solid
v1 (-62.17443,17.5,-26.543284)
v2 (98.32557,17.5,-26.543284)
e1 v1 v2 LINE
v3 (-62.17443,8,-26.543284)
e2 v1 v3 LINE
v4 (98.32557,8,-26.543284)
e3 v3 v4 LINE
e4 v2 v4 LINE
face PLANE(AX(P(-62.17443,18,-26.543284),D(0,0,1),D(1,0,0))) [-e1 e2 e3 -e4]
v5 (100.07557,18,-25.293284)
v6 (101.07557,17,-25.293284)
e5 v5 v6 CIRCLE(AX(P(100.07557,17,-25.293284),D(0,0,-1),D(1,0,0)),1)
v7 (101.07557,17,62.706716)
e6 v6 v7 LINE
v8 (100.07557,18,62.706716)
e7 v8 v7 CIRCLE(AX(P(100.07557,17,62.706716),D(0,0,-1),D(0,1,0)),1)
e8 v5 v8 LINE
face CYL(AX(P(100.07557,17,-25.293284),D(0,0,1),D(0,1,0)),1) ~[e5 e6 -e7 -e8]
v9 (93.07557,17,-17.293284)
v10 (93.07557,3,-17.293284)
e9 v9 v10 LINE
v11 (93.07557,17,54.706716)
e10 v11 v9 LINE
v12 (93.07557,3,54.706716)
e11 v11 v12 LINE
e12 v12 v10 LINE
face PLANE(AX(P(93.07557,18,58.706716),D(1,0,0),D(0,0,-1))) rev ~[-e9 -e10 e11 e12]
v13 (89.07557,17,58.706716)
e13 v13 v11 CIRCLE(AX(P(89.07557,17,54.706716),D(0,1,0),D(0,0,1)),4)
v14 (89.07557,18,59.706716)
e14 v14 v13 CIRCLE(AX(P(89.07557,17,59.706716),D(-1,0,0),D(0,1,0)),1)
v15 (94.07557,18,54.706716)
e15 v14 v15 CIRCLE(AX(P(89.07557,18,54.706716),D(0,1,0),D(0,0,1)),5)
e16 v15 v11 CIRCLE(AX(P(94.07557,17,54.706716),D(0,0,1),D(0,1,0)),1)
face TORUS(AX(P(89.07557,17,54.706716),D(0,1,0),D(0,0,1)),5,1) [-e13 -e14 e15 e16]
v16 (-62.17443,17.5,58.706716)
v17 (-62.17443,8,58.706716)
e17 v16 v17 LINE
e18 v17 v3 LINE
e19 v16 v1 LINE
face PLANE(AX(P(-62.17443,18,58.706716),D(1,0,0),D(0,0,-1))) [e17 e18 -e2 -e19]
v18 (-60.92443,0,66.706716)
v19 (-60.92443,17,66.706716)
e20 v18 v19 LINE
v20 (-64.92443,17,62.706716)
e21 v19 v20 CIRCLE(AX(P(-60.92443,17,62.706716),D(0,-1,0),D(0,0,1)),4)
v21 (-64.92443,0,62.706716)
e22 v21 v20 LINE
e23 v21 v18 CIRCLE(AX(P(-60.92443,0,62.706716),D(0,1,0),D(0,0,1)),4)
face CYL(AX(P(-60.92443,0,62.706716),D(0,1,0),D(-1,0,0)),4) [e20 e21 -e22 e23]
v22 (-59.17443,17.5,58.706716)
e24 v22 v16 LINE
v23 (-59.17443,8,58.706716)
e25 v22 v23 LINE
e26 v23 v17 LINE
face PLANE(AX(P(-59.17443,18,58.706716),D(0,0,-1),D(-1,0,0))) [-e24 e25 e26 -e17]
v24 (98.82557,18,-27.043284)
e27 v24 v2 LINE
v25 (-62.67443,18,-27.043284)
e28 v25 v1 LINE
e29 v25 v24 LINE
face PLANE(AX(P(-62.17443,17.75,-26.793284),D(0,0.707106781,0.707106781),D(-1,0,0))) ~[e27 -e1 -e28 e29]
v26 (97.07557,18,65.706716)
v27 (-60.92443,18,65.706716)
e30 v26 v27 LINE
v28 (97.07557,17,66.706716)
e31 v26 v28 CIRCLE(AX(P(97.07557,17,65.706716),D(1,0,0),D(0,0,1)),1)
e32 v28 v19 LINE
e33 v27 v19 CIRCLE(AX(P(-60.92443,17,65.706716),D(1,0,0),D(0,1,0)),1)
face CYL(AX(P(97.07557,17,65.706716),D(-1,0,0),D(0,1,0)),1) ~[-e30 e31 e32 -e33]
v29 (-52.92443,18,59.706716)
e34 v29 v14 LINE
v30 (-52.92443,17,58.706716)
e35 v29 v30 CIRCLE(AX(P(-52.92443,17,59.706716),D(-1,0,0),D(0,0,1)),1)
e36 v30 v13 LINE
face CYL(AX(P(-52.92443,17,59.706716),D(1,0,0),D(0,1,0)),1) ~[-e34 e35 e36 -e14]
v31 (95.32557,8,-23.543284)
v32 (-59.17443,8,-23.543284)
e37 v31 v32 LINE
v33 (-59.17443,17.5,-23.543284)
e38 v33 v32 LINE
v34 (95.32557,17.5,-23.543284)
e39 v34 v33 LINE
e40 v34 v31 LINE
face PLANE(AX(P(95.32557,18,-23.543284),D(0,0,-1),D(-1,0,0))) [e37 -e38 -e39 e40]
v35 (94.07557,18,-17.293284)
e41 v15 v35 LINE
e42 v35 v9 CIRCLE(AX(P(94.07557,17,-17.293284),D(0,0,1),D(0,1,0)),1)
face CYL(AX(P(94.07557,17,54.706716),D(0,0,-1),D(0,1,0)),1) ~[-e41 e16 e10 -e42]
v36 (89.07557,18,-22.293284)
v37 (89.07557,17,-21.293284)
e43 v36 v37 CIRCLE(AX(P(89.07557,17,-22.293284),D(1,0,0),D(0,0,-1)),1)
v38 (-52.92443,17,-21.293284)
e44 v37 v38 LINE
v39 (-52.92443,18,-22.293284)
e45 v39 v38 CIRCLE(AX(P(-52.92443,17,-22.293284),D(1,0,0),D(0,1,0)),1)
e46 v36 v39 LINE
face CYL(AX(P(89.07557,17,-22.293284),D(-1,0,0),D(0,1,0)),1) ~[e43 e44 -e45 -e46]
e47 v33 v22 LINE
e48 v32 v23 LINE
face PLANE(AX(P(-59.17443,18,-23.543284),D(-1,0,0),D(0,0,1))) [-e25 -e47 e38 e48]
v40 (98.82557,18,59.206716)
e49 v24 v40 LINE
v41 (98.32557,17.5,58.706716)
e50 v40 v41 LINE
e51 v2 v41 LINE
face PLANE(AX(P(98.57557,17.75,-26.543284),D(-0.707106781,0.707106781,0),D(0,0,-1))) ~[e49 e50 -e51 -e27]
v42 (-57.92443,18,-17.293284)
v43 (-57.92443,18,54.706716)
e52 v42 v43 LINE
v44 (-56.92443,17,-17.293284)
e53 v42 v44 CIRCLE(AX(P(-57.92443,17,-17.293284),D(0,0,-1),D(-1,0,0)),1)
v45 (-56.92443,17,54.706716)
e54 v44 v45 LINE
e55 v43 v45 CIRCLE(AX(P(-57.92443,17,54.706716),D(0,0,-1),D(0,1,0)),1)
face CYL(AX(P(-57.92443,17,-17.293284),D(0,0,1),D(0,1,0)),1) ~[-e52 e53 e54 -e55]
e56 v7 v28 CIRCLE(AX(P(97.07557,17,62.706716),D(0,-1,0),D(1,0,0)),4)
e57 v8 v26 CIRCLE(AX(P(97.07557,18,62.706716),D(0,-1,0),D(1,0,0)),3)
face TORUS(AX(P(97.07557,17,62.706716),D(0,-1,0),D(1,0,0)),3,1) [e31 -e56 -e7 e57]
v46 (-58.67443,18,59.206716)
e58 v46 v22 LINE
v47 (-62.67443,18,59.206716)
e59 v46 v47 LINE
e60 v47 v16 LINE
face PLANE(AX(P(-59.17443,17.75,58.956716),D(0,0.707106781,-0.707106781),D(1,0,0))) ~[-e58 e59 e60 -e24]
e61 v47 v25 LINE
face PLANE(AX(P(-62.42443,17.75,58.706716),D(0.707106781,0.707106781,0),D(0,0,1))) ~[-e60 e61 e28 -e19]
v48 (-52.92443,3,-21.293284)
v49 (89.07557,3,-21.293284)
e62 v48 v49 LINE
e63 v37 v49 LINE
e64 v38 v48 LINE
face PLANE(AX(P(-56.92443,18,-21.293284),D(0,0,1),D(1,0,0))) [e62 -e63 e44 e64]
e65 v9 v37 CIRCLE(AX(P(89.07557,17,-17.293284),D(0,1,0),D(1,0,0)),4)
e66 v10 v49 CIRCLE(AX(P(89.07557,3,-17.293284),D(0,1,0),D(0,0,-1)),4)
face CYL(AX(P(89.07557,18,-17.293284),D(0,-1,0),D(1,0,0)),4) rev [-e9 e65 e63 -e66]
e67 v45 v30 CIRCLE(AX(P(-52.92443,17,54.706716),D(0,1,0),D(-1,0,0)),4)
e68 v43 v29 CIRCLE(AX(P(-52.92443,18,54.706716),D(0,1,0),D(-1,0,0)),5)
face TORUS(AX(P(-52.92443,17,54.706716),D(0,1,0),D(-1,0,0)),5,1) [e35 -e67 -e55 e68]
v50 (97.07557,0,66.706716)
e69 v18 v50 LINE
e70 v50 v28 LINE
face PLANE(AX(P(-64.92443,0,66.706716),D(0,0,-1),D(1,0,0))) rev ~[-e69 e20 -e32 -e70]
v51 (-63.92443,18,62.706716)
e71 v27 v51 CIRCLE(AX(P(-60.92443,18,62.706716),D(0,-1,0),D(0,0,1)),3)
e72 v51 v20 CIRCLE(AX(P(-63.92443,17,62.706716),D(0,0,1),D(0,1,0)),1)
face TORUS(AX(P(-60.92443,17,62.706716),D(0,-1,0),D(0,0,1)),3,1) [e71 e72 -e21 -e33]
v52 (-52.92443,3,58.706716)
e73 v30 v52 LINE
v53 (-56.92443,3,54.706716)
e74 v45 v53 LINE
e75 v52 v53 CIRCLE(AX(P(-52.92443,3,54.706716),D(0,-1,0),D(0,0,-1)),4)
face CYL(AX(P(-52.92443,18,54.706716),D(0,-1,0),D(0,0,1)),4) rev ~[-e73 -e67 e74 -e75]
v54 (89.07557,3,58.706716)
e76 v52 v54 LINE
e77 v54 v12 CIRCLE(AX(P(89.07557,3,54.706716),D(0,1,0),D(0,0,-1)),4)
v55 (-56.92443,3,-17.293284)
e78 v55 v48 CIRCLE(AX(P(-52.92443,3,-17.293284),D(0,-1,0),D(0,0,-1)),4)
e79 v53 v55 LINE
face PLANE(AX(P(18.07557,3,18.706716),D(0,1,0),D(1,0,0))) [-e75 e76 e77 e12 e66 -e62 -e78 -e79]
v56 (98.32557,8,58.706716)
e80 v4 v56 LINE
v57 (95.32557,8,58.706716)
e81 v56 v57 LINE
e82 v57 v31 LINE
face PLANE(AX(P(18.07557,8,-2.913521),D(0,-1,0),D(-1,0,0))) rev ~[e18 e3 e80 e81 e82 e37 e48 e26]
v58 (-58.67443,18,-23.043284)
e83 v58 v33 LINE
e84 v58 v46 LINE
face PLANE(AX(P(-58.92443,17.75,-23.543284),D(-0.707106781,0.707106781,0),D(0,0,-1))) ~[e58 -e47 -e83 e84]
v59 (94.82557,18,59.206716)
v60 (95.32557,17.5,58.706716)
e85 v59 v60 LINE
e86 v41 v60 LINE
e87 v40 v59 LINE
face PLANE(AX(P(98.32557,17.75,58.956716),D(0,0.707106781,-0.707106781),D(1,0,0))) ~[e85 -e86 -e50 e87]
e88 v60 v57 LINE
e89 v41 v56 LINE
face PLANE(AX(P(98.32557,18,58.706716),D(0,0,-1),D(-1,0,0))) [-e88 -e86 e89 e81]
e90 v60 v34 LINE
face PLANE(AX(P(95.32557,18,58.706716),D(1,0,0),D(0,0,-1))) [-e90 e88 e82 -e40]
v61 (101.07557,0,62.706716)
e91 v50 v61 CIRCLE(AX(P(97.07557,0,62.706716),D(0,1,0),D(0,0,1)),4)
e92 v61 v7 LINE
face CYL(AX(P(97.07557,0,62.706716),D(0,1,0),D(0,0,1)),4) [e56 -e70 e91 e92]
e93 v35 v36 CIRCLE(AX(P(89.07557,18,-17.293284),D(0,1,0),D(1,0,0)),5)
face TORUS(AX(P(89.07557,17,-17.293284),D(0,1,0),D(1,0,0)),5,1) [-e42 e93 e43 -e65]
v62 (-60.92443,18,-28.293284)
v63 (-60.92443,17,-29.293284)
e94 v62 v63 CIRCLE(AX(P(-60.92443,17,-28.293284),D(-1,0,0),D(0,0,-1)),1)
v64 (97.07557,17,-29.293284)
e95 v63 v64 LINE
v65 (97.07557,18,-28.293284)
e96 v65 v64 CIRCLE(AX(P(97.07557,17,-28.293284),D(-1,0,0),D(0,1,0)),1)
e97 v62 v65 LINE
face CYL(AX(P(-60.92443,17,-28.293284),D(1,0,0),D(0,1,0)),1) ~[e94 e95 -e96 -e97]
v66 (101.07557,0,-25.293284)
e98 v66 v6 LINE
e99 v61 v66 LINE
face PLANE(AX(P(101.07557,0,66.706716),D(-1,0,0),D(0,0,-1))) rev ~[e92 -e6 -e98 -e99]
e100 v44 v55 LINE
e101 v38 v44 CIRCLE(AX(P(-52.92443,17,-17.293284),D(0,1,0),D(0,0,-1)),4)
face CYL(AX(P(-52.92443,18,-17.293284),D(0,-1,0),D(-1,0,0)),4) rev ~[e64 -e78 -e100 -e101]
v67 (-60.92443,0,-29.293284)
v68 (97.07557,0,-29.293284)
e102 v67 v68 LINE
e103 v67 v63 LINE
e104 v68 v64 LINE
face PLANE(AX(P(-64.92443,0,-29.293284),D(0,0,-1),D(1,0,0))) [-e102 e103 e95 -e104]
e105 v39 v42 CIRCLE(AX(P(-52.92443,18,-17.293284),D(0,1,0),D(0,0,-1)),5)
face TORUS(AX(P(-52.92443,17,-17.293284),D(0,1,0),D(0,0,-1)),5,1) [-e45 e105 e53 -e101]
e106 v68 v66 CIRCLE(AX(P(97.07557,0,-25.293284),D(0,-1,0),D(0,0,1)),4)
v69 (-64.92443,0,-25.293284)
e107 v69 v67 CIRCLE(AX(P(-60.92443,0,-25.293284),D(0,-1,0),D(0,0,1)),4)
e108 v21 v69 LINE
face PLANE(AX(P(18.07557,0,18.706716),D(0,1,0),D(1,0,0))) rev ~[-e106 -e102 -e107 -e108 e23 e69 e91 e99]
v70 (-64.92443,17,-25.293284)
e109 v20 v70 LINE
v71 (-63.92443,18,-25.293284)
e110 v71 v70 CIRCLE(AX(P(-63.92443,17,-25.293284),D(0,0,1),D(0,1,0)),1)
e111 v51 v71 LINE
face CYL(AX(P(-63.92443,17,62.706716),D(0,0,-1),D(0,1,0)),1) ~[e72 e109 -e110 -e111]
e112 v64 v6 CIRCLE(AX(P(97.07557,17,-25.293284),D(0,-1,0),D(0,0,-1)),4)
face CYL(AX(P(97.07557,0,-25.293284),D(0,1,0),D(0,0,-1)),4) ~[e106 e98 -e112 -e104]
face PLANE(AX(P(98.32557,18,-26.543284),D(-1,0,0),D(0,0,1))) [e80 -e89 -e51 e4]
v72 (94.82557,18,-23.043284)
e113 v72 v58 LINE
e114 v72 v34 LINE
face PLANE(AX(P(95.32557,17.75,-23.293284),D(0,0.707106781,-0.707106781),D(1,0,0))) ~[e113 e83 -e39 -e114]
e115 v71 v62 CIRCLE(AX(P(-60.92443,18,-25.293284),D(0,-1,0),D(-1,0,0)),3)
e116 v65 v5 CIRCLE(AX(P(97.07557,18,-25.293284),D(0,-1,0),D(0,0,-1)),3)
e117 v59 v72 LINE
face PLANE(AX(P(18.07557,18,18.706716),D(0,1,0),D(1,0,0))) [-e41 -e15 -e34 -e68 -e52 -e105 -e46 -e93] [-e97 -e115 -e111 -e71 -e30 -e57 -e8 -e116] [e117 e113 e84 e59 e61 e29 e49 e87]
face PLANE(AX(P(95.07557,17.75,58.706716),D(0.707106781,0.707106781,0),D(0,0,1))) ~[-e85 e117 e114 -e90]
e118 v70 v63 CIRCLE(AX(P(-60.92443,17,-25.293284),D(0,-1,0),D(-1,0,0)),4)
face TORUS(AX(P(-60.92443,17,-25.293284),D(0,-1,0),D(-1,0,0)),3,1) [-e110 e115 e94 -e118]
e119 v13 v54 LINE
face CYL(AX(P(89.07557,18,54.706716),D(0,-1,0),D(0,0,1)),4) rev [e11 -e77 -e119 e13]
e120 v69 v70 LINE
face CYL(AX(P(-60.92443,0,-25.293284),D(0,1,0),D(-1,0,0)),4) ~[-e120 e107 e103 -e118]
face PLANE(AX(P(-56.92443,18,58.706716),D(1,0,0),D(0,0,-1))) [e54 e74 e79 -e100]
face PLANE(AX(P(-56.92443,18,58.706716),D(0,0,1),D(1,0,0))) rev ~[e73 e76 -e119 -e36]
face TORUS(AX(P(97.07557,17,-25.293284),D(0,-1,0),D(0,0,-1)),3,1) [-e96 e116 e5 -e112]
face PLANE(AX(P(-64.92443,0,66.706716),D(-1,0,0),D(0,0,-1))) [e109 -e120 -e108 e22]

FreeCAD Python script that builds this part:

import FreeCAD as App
import Part
import Sketcher
Q = App.Units.Quantity


def edges_at(feature, points):
    """Names of the edges that pass closest to the given points."""
    edges = feature.Shape.Edges
    near = lambda p: min(range(len(edges)), key=lambda i: edges[i].distToShape(Part.Vertex(*p))[0])
    return sorted({f"Edge{near(p) + 1}" for p in points})


def add_polygon(sketch, points):
    """Adds a closed chain of lines whose ends are joined by coincident constraints."""
    first, n = sketch.GeometryCount, len(points)
    for a, b in zip(points, points[1:] + points[:1]):
        sketch.addGeometry(Part.LineSegment(App.Vector(*a, 0), App.Vector(*b, 0)), False)
    for i in range(n):
        sketch.addConstraint(Sketcher.Constraint("Coincident", first + i, 2, first + (i + 1) % n, 1))

doc = App.newDocument("Part")
body = doc.addObject("PartDesign::Body", "Body")

# Sketch on XZ plane
sketch1 = body.newObject("Sketcher::SketchObject", "Sketch")
sketch1.AttachmentSupport = (doc.getObject("XZ_Plane"), [""])
sketch1.MapMode = "FlatFace"
add_polygon(sketch1, [(-65, -29), (-65, 67), (101, 67), (101, -29)])  # lines 0-3
sketch1.addConstraint(Sketcher.Constraint("Vertical", 0))
sketch1.addConstraint(Sketcher.Constraint("Horizontal", 1))
sketch1.addConstraint(Sketcher.Constraint("Vertical", 2))
sketch1.addConstraint(Sketcher.Constraint("Horizontal", 3))
sketch1.addConstraint(Sketcher.Constraint("DistanceX", 1, 1, 1, 2, Q("166 mm")))
sketch1.addConstraint(Sketcher.Constraint("DistanceY", 0, 1, 0, 2, Q("96 mm")))
sketch1.addConstraint(Sketcher.Constraint("DistanceX", 0, 2, -1, 1, Q("64.92443 mm")))
sketch1.addConstraint(Sketcher.Constraint("DistanceY", -1, 1, 0, 2, Q("66.706716 mm")))
pad1 = body.newObject("PartDesign::Pad", "Pad")
pad1.Profile = sketch1
pad1.Length = 18
pad1.Reversed = True

# Sketch on XZ plane
sketch2 = body.newObject("Sketcher::SketchObject", "Sketch001")
sketch2.AttachmentSupport = (doc.getObject("XZ_Plane"), [""])
sketch2.MapMode = "FlatFace"
sketch2.AttachmentOffset = App.Placement(App.Vector(0, 0, -18), App.Rotation())
add_polygon(sketch2, [(-57, -21), (-57, 59), (93, 59), (93, -21)])  # lines 0-3
sketch2.addConstraint(Sketcher.Constraint("Vertical", 0))
sketch2.addConstraint(Sketcher.Constraint("Horizontal", 1))
sketch2.addConstraint(Sketcher.Constraint("Vertical", 2))
sketch2.addConstraint(Sketcher.Constraint("Horizontal", 3))
sketch2.addConstraint(Sketcher.Constraint("DistanceX", 1, 1, 1, 2, Q("150 mm")))
sketch2.addConstraint(Sketcher.Constraint("DistanceY", 0, 1, 0, 2, Q("80 mm")))
sketch2.addConstraint(Sketcher.Constraint("DistanceX", 0, 2, -1, 1, Q("56.92443 mm")))
sketch2.addConstraint(Sketcher.Constraint("DistanceY", -1, 1, 0, 2, Q("58.706716 mm")))
pocket1 = body.newObject("PartDesign::Pocket", "Pocket")
pocket1.Profile = sketch2
pocket1.Length = 15
pocket1.Reversed = True

# Sketch on XZ plane
sketch3 = body.newObject("Sketcher::SketchObject", "Sketch002")
sketch3.AttachmentSupport = (doc.getObject("XZ_Plane"), [""])
sketch3.MapMode = "FlatFace"
sketch3.AttachmentOffset = App.Placement(App.Vector(0, 0, -18), App.Rotation())
add_polygon(sketch3, [(98.3, -26.5), (-62.2, -26.5), (-62.2, 58.7), (-59.2, 58.7), (-59.2, -23.5), (95.3, -23.5), (95.3, 58.7), (98.3, 58.7)])  # lines 0-7
sketch3.addConstraint(Sketcher.Constraint("Horizontal", 0))
sketch3.addConstraint(Sketcher.Constraint("Vertical", 1))
sketch3.addConstraint(Sketcher.Constraint("Horizontal", 2))
sketch3.addConstraint(Sketcher.Constraint("Vertical", 3))
sketch3.addConstraint(Sketcher.Constraint("Horizontal", 4))
sketch3.addConstraint(Sketcher.Constraint("Vertical", 5))
sketch3.addConstraint(Sketcher.Constraint("Horizontal", 6))
sketch3.addConstraint(Sketcher.Constraint("Vertical", 7))
sketch3.addConstraint(Sketcher.Constraint("Horizontal", 2, 2, 5, 2))
sketch3.addConstraint(Sketcher.Constraint("Equal", 2, 6))
sketch3.addConstraint(Sketcher.Constraint("DistanceX", 2, 1, 2, 2, Q("3 mm")))
sketch3.addConstraint(Sketcher.Constraint("DistanceX", 0, 2, 0, 1, Q("160.5 mm")))
sketch3.addConstraint(Sketcher.Constraint("DistanceY", 0, 2, 3, 2, Q("3 mm")))
sketch3.addConstraint(Sketcher.Constraint("DistanceY", 1, 1, 1, 2, Q("85.25 mm")))
sketch3.addConstraint(Sketcher.Constraint("DistanceX", 0, 2, -1, 1, Q("62.17443 mm")))
sketch3.addConstraint(Sketcher.Constraint("DistanceY", 0, 2, -1, 1, Q("26.543284 mm")))
pocket2 = body.newObject("PartDesign::Pocket", "Pocket001")
pocket2.Profile = sketch3
pocket2.Length = 10
pocket2.Reversed = True
doc.recompute()

fillet = body.newObject("PartDesign::Fillet", "Fillet")
fillet.Base = (pocket2, edges_at(pocket2, [
    (-64.924, 9, -29.293),
    (101.076, 9, -29.293),
    (101.076, 9, 66.707),
    (-64.924, 9, 66.707),
]))
fillet.Radius = 4
doc.recompute()

fillet2 = body.newObject("PartDesign::Fillet", "Fillet001")
fillet2.Base = (fillet, edges_at(fillet, [
    (-56.924, 10.5, 58.707),
    (-56.924, 10.5, -21.293),
    (93.076, 10.5, -21.293),
    (93.076, 10.5, 58.707),
]))
fillet2.Radius = 4
doc.recompute()

fillet3 = body.newObject("PartDesign::Fillet", "Fillet002")
fillet3.Base = (fillet2, edges_at(fillet2, [
    (-64.924, 18, 18.707),
    (18.076, 18, -29.293),
    (18.076, 18, 66.707),
    (101.076, 18, 18.707),
    (-63.753, 18, 65.535),
    (99.904, 18, 65.535),
    (99.904, 18, -28.122),
    (-63.753, 18, -28.122),
    (93.076, 18, 18.707),
    (18.076, 18, 58.707),
    (18.076, 18, -21.293),
    (-56.924, 18, 18.707),
    (91.904, 18, 57.535),
    (91.904, 18, -20.122),
    (-55.753, 18, -20.122),
    (-55.753, 18, 57.535),
]))
fillet3.Radius = 1
doc.recompute()

chamfer = body.newObject("PartDesign::Chamfer", "Chamfer")
chamfer.Base = (fillet3, edges_at(fillet3, [
    (-62.174, 18, 16.082),
    (-60.674, 18, 58.707),
    (-59.174, 18, 17.582),
    (18.076, 18, -23.543),
    (95.326, 18, 17.582),
    (96.826, 18, 58.707),
    (98.326, 18, 16.082),
    (18.076, 18, -26.543),
]))
chamfer.Size = 0.5

doc.recompute()
